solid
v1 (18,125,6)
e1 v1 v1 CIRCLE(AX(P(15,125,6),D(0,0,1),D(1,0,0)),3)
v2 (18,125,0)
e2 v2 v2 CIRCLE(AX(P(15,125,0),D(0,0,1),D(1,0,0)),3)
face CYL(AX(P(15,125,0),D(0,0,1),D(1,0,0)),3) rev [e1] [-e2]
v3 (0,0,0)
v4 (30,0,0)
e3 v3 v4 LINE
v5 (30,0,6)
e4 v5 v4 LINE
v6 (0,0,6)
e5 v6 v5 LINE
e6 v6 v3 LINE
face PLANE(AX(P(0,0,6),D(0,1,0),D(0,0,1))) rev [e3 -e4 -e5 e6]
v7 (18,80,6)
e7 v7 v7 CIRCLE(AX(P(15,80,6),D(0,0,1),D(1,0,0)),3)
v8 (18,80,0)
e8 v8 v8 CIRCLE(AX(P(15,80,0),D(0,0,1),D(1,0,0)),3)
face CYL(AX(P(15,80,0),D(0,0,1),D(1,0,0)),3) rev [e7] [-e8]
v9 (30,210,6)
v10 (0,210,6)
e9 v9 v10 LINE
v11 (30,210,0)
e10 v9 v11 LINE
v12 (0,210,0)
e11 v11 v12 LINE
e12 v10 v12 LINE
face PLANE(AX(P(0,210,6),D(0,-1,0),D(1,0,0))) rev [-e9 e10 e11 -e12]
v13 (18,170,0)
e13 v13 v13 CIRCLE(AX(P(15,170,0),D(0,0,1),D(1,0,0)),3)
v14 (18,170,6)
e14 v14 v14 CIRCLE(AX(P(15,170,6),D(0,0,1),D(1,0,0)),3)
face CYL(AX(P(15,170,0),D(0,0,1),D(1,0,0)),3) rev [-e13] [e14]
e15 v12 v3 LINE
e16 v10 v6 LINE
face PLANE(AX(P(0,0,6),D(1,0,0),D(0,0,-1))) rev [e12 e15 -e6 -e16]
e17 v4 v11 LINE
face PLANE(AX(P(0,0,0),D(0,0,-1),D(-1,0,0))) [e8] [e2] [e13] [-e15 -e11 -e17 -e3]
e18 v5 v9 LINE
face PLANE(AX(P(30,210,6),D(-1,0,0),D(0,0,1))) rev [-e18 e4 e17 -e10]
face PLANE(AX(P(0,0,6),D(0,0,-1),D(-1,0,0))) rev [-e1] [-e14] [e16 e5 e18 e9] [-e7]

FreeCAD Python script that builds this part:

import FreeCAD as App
import Part
import Sketcher
from FreeCAD import Vector
Q = App.Units.Quantity

doc = App.newDocument("Part")
params = doc.addObject("Spreadsheet::Sheet", "Params")
for row, (alias, value) in enumerate([
    ("sketch1_width", "30 mm"),
    ("sketch1_height", "210 mm"),
    ("pad1_length", "6 mm"),
    ("sketch2_diameter", "6 mm"),
    ("pocket1_length", "6 mm"),
], start=1):
    params.set(f"A{row}", alias)
    params.set(f"B{row}", "=" + value)
    params.setAlias(f"B{row}", alias)

body = doc.addObject("PartDesign::Body", "Body")

# Sketch on XY plane
sketch1 = body.newObject("Sketcher::SketchObject", "Sketch")
sketch1.AttachmentSupport = (doc.getObject("XY_Plane"), [""])
sketch1.MapMode = "FlatFace"
sketch1.addGeometry([
    Part.LineSegment(Vector(0, 210, 0), Vector(0, 0, 0)),
    Part.LineSegment(Vector(0, 0, 0), Vector(30, 0, 0)),
    Part.LineSegment(Vector(30, 0, 0), Vector(30, 210, 0)),
    Part.LineSegment(Vector(30, 210, 0), Vector(0, 210, 0)),
], False)
sketch1.addConstraint([
    Sketcher.Constraint("Coincident", 0, 2, 1, 1),
    Sketcher.Constraint("Coincident", 1, 2, 2, 1),
    Sketcher.Constraint("Coincident", 2, 2, 3, 1),
    Sketcher.Constraint("Coincident", 3, 2, 0, 1),
    Sketcher.Constraint("Vertical", 0),
    Sketcher.Constraint("Horizontal", 1),
    Sketcher.Constraint("Vertical", 2),
    Sketcher.Constraint("Horizontal", 3),
    Sketcher.Constraint("Coincident", 0, 2, -1, 1),
    Sketcher.Constraint("DistanceX", 1, 1, 1, 2, Q("30 mm")),
    Sketcher.Constraint("DistanceY", 0, 2, 0, 1, Q("210 mm")),
])
sketch1.setExpression("Constraints[9]", "Params.sketch1_width")
sketch1.setExpression("Constraints[10]", "Params.sketch1_height")
pad1 = body.newObject("PartDesign::Pad", "Pad")
pad1.Profile = sketch1
pad1.setExpression("Length", "Params.pad1_length")

# Sketch on XY plane
sketch2 = body.newObject("Sketcher::SketchObject", "Sketch001")
sketch2.AttachmentSupport = (doc.getObject("XY_Plane"), [""])
sketch2.MapMode = "FlatFace"
sketch2.AttachmentOffset = App.Placement(Vector(0, 0, 6), App.Rotation())
sketch2.addGeometry([
    Part.Circle(Vector(15, 170, 0), Vector(0, 0, 1), 3),
    Part.Circle(Vector(15, 125, 0), Vector(0, 0, 1), 3),
    Part.Circle(Vector(15, 80, 0), Vector(0, 0, 1), 3),
], False)
sketch2.addConstraint([
    Sketcher.Constraint("Equal", 0, 1),
    Sketcher.Constraint("Equal", 1, 2),
    Sketcher.Constraint("Vertical", 0, 3, 1, 3),
    Sketcher.Constraint("Vertical", 1, 3, 2, 3),
    Sketcher.Constraint("Diameter", 0, Q("6 mm")),
    Sketcher.Constraint("DistanceX", -1, 1, 0, 3, Q("15 mm")),
    Sketcher.Constraint("DistanceY", -1, 1, 0, 3, Q("170 mm")),
    Sketcher.Constraint("DistanceY", -1, 1, 1, 3, Q("125 mm")),
    Sketcher.Constraint("DistanceY", -1, 1, 2, 3, Q("80 mm")),
])
sketch2.setExpression("Constraints[4]", "Params.sketch2_diameter")
pocket1 = body.newObject("PartDesign::Pocket", "Pocket")
pocket1.Profile = sketch2
pocket1.setExpression("Length", "Params.pocket1_length")

doc.recompute()
